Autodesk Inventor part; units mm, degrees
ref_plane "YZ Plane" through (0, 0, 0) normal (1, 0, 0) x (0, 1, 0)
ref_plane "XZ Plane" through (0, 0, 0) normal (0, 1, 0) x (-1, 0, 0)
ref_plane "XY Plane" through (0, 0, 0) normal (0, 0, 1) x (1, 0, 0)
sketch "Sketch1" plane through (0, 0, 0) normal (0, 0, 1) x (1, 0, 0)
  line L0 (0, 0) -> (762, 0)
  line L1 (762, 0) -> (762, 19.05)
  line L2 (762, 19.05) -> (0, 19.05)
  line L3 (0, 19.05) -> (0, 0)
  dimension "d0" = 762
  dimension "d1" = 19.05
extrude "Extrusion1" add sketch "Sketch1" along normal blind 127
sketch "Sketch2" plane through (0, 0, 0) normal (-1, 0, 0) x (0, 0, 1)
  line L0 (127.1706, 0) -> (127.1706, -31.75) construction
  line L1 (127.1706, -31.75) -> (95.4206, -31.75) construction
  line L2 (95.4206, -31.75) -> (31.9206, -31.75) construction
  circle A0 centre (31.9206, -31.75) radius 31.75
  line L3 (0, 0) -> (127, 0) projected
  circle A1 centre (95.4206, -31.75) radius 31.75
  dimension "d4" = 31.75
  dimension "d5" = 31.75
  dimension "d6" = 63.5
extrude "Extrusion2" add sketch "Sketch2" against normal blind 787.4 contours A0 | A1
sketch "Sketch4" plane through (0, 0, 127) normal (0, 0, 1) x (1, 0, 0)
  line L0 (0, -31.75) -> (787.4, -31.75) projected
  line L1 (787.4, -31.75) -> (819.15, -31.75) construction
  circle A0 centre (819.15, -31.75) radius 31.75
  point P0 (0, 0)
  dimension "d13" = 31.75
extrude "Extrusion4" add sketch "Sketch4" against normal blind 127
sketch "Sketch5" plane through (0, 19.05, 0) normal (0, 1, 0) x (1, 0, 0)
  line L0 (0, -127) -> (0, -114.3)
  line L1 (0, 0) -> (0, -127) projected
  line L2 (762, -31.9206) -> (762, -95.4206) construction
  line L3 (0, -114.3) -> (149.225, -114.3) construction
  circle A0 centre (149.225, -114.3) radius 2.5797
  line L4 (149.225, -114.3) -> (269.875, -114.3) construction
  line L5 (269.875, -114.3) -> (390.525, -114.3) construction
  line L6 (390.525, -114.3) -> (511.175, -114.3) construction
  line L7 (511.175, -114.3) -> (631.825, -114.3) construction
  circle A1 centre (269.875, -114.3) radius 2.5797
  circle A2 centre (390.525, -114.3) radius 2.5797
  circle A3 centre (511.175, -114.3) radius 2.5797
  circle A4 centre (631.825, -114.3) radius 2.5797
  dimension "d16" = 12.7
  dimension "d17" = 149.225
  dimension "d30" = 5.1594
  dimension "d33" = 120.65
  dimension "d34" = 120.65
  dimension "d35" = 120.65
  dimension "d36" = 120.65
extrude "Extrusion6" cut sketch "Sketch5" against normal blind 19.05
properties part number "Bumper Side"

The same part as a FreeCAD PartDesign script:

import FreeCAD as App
import Part
import Sketcher

V = App.Vector
Q = App.Units.Quantity


def add_polygon(sketch, points):
    """Adds a closed chain of lines whose ends are joined by coincident constraints."""
    first, n = sketch.GeometryCount, len(points)
    for a, b in zip(points, points[1:] + points[:1]):
        sketch.addGeometry(Part.LineSegment(App.Vector(*a, 0), App.Vector(*b, 0)), False)
    for i in range(n):
        sketch.addConstraint(Sketcher.Constraint("Coincident", first + i, 2, first + (i + 1) % n, 1))

doc = App.newDocument("Part")
body = doc.addObject("PartDesign::Body", "Body")
body.AllowCompound = True

# Sketch on XY plane
sketch1 = doc.addObject("Sketcher::SketchObject", "Sketch")
body.addObject(sketch1)
sketch1.AttachmentSupport = (doc.XY_Plane, [""])
sketch1.MapMode = "FlatFace"
add_polygon(sketch1, [(0, 19), (0, 0), (762, 0), (762, 19)])  # lines 0-3
sketch1.addConstraint(Sketcher.Constraint("Vertical", 0))
sketch1.addConstraint(Sketcher.Constraint("Horizontal", 1))
sketch1.addConstraint(Sketcher.Constraint("Vertical", 2))
sketch1.addConstraint(Sketcher.Constraint("Horizontal", 3))
sketch1.addConstraint(Sketcher.Constraint("Coincident", 0, 2, -1, 1))
sketch1.addConstraint(Sketcher.Constraint("DistanceX", 1, 1, 1, 2, Q("30 in")))
sketch1.addConstraint(Sketcher.Constraint("DistanceY", 0, 2, 0, 1, Q("0.75 in")))
pad1 = doc.addObject("PartDesign::Pad", "Pad")
body.addObject(pad1)
pad1.Profile = sketch1
pad1.Length = Q("5 in")

# Sketch on YZ plane
sketch2 = doc.addObject("Sketcher::SketchObject", "Sketch001")
body.addObject(sketch2)
sketch2.AttachmentSupport = (doc.YZ_Plane, [""])
sketch2.MapMode = "FlatFace"
sketch2.addGeometry(Part.Circle(V(-32, 32, 0), V(0, 0, 1), 32), False)
sketch2.addGeometry(Part.Circle(V(-32, 95, 0), V(0, 0, 1), 32), False)
sketch2.addConstraint(Sketcher.Constraint("Equal", 0, 1))
sketch2.addConstraint(Sketcher.Constraint("Vertical", 0, 3, 1, 3))
sketch2.addConstraint(Sketcher.Constraint("Diameter", 0, Q("2.5 in")))
sketch2.addConstraint(Sketcher.Constraint("DistanceY", 0, 3, 1, 3, Q("2.5 in")))
sketch2.addConstraint(Sketcher.Constraint("DistanceX", 0, 3, -1, 1, Q("1.25 in")))
sketch2.addConstraint(Sketcher.Constraint("DistanceY", -1, 1, 0, 3, 31.9206))
pad2 = doc.addObject("PartDesign::Pad", "Pad001")
body.addObject(pad2)
pad2.Profile = sketch2
pad2.Length = Q("31 in")

# Sketch on XY plane
sketch3 = doc.addObject("Sketcher::SketchObject", "Sketch002")
body.addObject(sketch3)
sketch3.AttachmentSupport = (doc.XY_Plane, [""])
sketch3.MapMode = "FlatFace"
sketch3.AttachmentOffset = App.Placement(V(0, 0, 5 * 25.4), App.Rotation())
sketch3.addGeometry(Part.Circle(V(819, -32, 0), V(0, 0, 1), 32), False)
sketch3.addConstraint(Sketcher.Constraint("Diameter", 0, Q("2.5 in")))
sketch3.addConstraint(Sketcher.Constraint("DistanceY", 0, 3, -1, 1, Q("1.25 in")))
sketch3.addConstraint(Sketcher.Constraint("DistanceX", -1, 1, 0, 3, Q("32.25 in")))
pad3 = doc.addObject("PartDesign::Pad", "Pad002")
body.addObject(pad3)
pad3.Profile = sketch3
pad3.Length = Q("5 in")
pad3.Reversed = True

# Sketch on XZ plane
sketch4 = doc.addObject("Sketcher::SketchObject", "Sketch003")
body.addObject(sketch4)
sketch4.AttachmentSupport = (doc.XZ_Plane, [""])
sketch4.MapMode = "FlatFace"
sketch4.AttachmentOffset = App.Placement(V(0, 0, -0.75 * 25.4), App.Rotation())
sketch4.addGeometry(Part.Circle(V(149.2, 114.3, 0), V(0, 0, 1), 2.6), False)
sketch4.addGeometry(Part.Circle(V(269.9, 114.3, 0), V(0, 0, 1), 2.6), False)
sketch4.addGeometry(Part.Circle(V(390.5, 114.3, 0), V(0, 0, 1), 2.6), False)
sketch4.addGeometry(Part.Circle(V(511.2, 114.3, 0), V(0, 0, 1), 2.6), False)
sketch4.addGeometry(Part.Circle(V(631.8, 114.3, 0), V(0, 0, 1), 2.6), False)
sketch4.addConstraint(Sketcher.Constraint("Equal", 0, 1))
sketch4.addConstraint(Sketcher.Constraint("Equal", 1, 2))
sketch4.addConstraint(Sketcher.Constraint("Equal", 2, 3))
sketch4.addConstraint(Sketcher.Constraint("Equal", 3, 4))
sketch4.addConstraint(Sketcher.Constraint("Horizontal", 0, 3, 1, 3))
sketch4.addConstraint(Sketcher.Constraint("Horizontal", 1, 3, 2, 3))
sketch4.addConstraint(Sketcher.Constraint("Horizontal", 2, 3, 3, 3))
sketch4.addConstraint(Sketcher.Constraint("Horizontal", 3, 3, 4, 3))
sketch4.addConstraint(Sketcher.Constraint("Diameter", 0, Q("0.203126 in")))
sketch4.addConstraint(Sketcher.Constraint("DistanceX", 0, 3, 1, 3, Q("4.75 in")))
sketch4.addConstraint(Sketcher.Constraint("DistanceX", 1, 3, 2, 3, Q("4.75 in")))
sketch4.addConstraint(Sketcher.Constraint("DistanceX", 2, 3, 3, 3, Q("4.75 in")))
sketch4.addConstraint(Sketcher.Constraint("DistanceX", 3, 3, 4, 3, Q("4.75 in")))
sketch4.addConstraint(Sketcher.Constraint("DistanceX", -1, 1, 0, 3, Q("5.875 in")))
sketch4.addConstraint(Sketcher.Constraint("DistanceY", -1, 1, 0, 3, Q("4.5 in")))
pocket1 = doc.addObject("PartDesign::Pocket", "Pocket")
body.addObject(pocket1)
pocket1.Profile = sketch4
pocket1.Length = Q("0.75 in")
pocket1.Reversed = True

doc.recompute()
